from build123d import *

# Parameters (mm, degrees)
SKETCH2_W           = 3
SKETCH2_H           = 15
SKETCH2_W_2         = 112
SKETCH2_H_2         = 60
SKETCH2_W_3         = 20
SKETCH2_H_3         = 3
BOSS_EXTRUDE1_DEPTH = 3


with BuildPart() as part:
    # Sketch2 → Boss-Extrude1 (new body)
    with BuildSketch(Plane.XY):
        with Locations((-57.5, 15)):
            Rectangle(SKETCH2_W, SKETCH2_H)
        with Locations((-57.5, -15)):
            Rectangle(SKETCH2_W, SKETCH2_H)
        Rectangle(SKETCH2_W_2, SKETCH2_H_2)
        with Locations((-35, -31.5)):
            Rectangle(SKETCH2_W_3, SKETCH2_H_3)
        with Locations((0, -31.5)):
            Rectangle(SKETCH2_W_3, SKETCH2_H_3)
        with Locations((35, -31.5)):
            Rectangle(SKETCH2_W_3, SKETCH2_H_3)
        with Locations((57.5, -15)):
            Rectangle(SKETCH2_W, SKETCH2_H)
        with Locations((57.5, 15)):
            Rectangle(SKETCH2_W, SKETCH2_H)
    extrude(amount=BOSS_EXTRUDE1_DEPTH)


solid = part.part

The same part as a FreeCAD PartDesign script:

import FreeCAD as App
import Part
import Sketcher

V = App.Vector

doc = App.newDocument("Part")
params = doc.addObject("Spreadsheet::Sheet", "Params")
for row, (alias, value) in enumerate([
    ("sketch1_width", "3 mm"),
    ("sketch1_width2", "11 mm"),
    ("sketch1_width3", "20 mm"),
    ("sketch1_width4", "15 mm"),
    ("sketch1_height", "7.5 mm"),
    ("pad1_length", "3 mm"),
], start=1):
    params.set(f"A{row}", alias)
    params.set(f"B{row}", "=" + value)
    params.setAlias(f"B{row}", alias)

body = doc.addObject("PartDesign::Body", "Body")

# Sketch on XY plane
sketch1 = body.newObject("Sketcher::SketchObject", "Sketch")
sketch1.AttachmentSupport = (doc.getObject("XY_Plane"), [""])
sketch1.MapMode = "FlatFace"
sketch1.addGeometry(Part.LineSegment(V(-59, 22.5, 0), V(-59, 7.5, 0)), False)
sketch1.addGeometry(Part.LineSegment(V(-59, 7.5, 0), V(-56, 7.5, 0)), False)
sketch1.addGeometry(Part.LineSegment(V(-56, 7.5, 0), V(-56, -7.5, 0)), False)
sketch1.addGeometry(Part.LineSegment(V(-56, -7.5, 0), V(-59, -7.5, 0)), False)
sketch1.addGeometry(Part.LineSegment(V(-59, -7.5, 0), V(-59, -22.5, 0)), False)
sketch1.addGeometry(Part.LineSegment(V(-59, -22.5, 0), V(-56, -22.5, 0)), False)
sketch1.addGeometry(Part.LineSegment(V(-56, -22.5, 0), V(-56, -30, 0)), False)
sketch1.addGeometry(Part.LineSegment(V(-56, -30, 0), V(-45, -30, 0)), False)
sketch1.addGeometry(Part.LineSegment(V(-45, -30, 0), V(-45, -33, 0)), False)
sketch1.addGeometry(Part.LineSegment(V(-45, -33, 0), V(-25, -33, 0)), False)
sketch1.addGeometry(Part.LineSegment(V(-25, -33, 0), V(-25, -30, 0)), False)
sketch1.addGeometry(Part.LineSegment(V(-25, -30, 0), V(-10, -30, 0)), False)
sketch1.addGeometry(Part.LineSegment(V(-10, -30, 0), V(-10, -33, 0)), False)
sketch1.addGeometry(Part.LineSegment(V(-10, -33, 0), V(10, -33, 0)), False)
sketch1.addGeometry(Part.LineSegment(V(10, -33, 0), V(10, -30, 0)), False)
sketch1.addGeometry(Part.LineSegment(V(10, -30, 0), V(25, -30, 0)), False)
sketch1.addGeometry(Part.LineSegment(V(25, -30, 0), V(25, -33, 0)), False)
sketch1.addGeometry(Part.LineSegment(V(25, -33, 0), V(45, -33, 0)), False)
sketch1.addGeometry(Part.LineSegment(V(45, -33, 0), V(45, -30, 0)), False)
sketch1.addGeometry(Part.LineSegment(V(45, -30, 0), V(56, -30, 0)), False)
sketch1.addGeometry(Part.LineSegment(V(56, -30, 0), V(56, -22.5, 0)), False)
sketch1.addGeometry(Part.LineSegment(V(56, -22.5, 0), V(59, -22.5, 0)), False)
sketch1.addGeometry(Part.LineSegment(V(59, -22.5, 0), V(59, -7.5, 0)), False)
sketch1.addGeometry(Part.LineSegment(V(59, -7.5, 0), V(56, -7.5, 0)), False)
sketch1.addGeometry(Part.LineSegment(V(56, -7.5, 0), V(56, 7.5, 0)), False)
sketch1.addGeometry(Part.LineSegment(V(56, 7.5, 0), V(59, 7.5, 0)), False)
sketch1.addGeometry(Part.LineSegment(V(59, 7.5, 0), V(59, 22.5, 0)), False)
sketch1.addGeometry(Part.LineSegment(V(59, 22.5, 0), V(56, 22.5, 0)), False)
sketch1.addGeometry(Part.LineSegment(V(56, 22.5, 0), V(56, 30, 0)), False)
sketch1.addGeometry(Part.LineSegment(V(56, 30, 0), V(-56, 30, 0)), False)
sketch1.addGeometry(Part.LineSegment(V(-56, 30, 0), V(-56, 22.5, 0)), False)
sketch1.addGeometry(Part.LineSegment(V(-56, 22.5, 0), V(-59, 22.5, 0)), False)
sketch1.addConstraint(Sketcher.Constraint("Coincident", 0, 2, 1, 1))
sketch1.addConstraint(Sketcher.Constraint("Coincident", 1, 2, 2, 1))
sketch1.addConstraint(Sketcher.Constraint("Coincident", 2, 2, 3, 1))
sketch1.addConstraint(Sketcher.Constraint("Coincident", 3, 2, 4, 1))
sketch1.addConstraint(Sketcher.Constraint("Coincident", 4, 2, 5, 1))
sketch1.addConstraint(Sketcher.Constraint("Coincident", 5, 2, 6, 1))
sketch1.addConstraint(Sketcher.Constraint("Coincident", 6, 2, 7, 1))
sketch1.addConstraint(Sketcher.Constraint("Coincident", 7, 2, 8, 1))
sketch1.addConstraint(Sketcher.Constraint("Coincident", 8, 2, 9, 1))
sketch1.addConstraint(Sketcher.Constraint("Coincident", 9, 2, 10, 1))
sketch1.addConstraint(Sketcher.Constraint("Coincident", 10, 2, 11, 1))
sketch1.addConstraint(Sketcher.Constraint("Coincident", 11, 2, 12, 1))
sketch1.addConstraint(Sketcher.Constraint("Coincident", 12, 2, 13, 1))
sketch1.addConstraint(Sketcher.Constraint("Coincident", 13, 2, 14, 1))
sketch1.addConstraint(Sketcher.Constraint("Coincident", 14, 2, 15, 1))
sketch1.addConstraint(Sketcher.Constraint("Coincident", 15, 2, 16, 1))
sketch1.addConstraint(Sketcher.Constraint("Coincident", 16, 2, 17, 1))
sketch1.addConstraint(Sketcher.Constraint("Coincident", 17, 2, 18, 1))
sketch1.addConstraint(Sketcher.Constraint("Coincident", 18, 2, 19, 1))
sketch1.addConstraint(Sketcher.Constraint("Coincident", 19, 2, 20, 1))
sketch1.addConstraint(Sketcher.Constraint("Coincident", 20, 2, 21, 1))
sketch1.addConstraint(Sketcher.Constraint("Coincident", 21, 2, 22, 1))
sketch1.addConstraint(Sketcher.Constraint("Coincident", 22, 2, 23, 1))
sketch1.addConstraint(Sketcher.Constraint("Coincident", 23, 2, 24, 1))
sketch1.addConstraint(Sketcher.Constraint("Coincident", 24, 2, 25, 1))
sketch1.addConstraint(Sketcher.Constraint("Coincident", 25, 2, 26, 1))
sketch1.addConstraint(Sketcher.Constraint("Coincident", 26, 2, 27, 1))
sketch1.addConstraint(Sketcher.Constraint("Coincident", 27, 2, 28, 1))
sketch1.addConstraint(Sketcher.Constraint("Coincident", 28, 2, 29, 1))
sketch1.addConstraint(Sketcher.Constraint("Coincident", 29, 2, 30, 1))
sketch1.addConstraint(Sketcher.Constraint("Coincident", 30, 2, 31, 1))
sketch1.addConstraint(Sketcher.Constraint("Coincident", 31, 2, 0, 1))
sketch1.addConstraint(Sketcher.Constraint("Vertical", 0))
sketch1.addConstraint(Sketcher.Constraint("Horizontal", 1))
sketch1.addConstraint(Sketcher.Constraint("Vertical", 2))
sketch1.addConstraint(Sketcher.Constraint("Horizontal", 3))
sketch1.addConstraint(Sketcher.Constraint("Vertical", 4))
sketch1.addConstraint(Sketcher.Constraint("Horizontal", 5))
sketch1.addConstraint(Sketcher.Constraint("Vertical", 6))
sketch1.addConstraint(Sketcher.Constraint("Horizontal", 7))
sketch1.addConstraint(Sketcher.Constraint("Vertical", 8))
sketch1.addConstraint(Sketcher.Constraint("Horizontal", 9))
sketch1.addConstraint(Sketcher.Constraint("Vertical", 10))
sketch1.addConstraint(Sketcher.Constraint("Horizontal", 11))
sketch1.addConstraint(Sketcher.Constraint("Vertical", 12))
sketch1.addConstraint(Sketcher.Constraint("Horizontal", 13))
sketch1.addConstraint(Sketcher.Constraint("Vertical", 14))
sketch1.addConstraint(Sketcher.Constraint("Horizontal", 15))
sketch1.addConstraint(Sketcher.Constraint("Vertical", 16))
sketch1.addConstraint(Sketcher.Constraint("Horizontal", 17))
sketch1.addConstraint(Sketcher.Constraint("Vertical", 18))
sketch1.addConstraint(Sketcher.Constraint("Horizontal", 19))
sketch1.addConstraint(Sketcher.Constraint("Vertical", 20))
sketch1.addConstraint(Sketcher.Constraint("Horizontal", 21))
sketch1.addConstraint(Sketcher.Constraint("Vertical", 22))
sketch1.addConstraint(Sketcher.Constraint("Horizontal", 23))
sketch1.addConstraint(Sketcher.Constraint("Vertical", 24))
sketch1.addConstraint(Sketcher.Constraint("Horizontal", 25))
sketch1.addConstraint(Sketcher.Constraint("Vertical", 26))
sketch1.addConstraint(Sketcher.Constraint("Horizontal", 27))
sketch1.addConstraint(Sketcher.Constraint("Vertical", 28))
sketch1.addConstraint(Sketcher.Constraint("Horizontal", 29))
sketch1.addConstraint(Sketcher.Constraint("Vertical", 30))
sketch1.addConstraint(Sketcher.Constraint("Horizontal", 31))
sketch1.addConstraint(Sketcher.Constraint("Symmetric", 0, 2, 22, 2, -1, 1))
sketch1.addConstraint(Sketcher.Constraint("Symmetric", 2, 2, 24, 2, -1, 1))
sketch1.addConstraint(Sketcher.Constraint("Symmetric", 4, 2, 26, 2, -1, 1))
sketch1.addConstraint(Sketcher.Constraint("Symmetric", 6, 2, 28, 2, -1, 1))
sketch1.addConstraint(Sketcher.Constraint("Symmetric", 19, 2, 29, 2, -1, 1))
sketch1.addConstraint(Sketcher.Constraint("Symmetric", 11, 2, 14, 2, -2))
sketch1.addConstraint(Sketcher.Constraint("Symmetric", 9, 2, 16, 2, -2))
sketch1.addConstraint(Sketcher.Constraint("Symmetric", 5, 2, 20, 2, -2))
sketch1.addConstraint(Sketcher.Constraint("Symmetric", 3, 2, 22, 2, -2))
sketch1.addConstraint(Sketcher.Constraint("Horizontal", 7, 2, 10, 2))
sketch1.addConstraint(Sketcher.Constraint("Horizontal", 9, 2, 12, 2))
sketch1.addConstraint(Sketcher.Constraint("Horizontal", 27, 2, 30, 2))
sketch1.addConstraint(Sketcher.Constraint("Vertical", 2, 2, 5, 2))
sketch1.addConstraint(Sketcher.Constraint("Equal", 9, 13))
sketch1.addConstraint(Sketcher.Constraint("Equal", 13, 17))
sketch1.addConstraint(Sketcher.Constraint("Equal", 15, 0))
sketch1.addConstraint(Sketcher.Constraint("Equal", 0, 2))
sketch1.addConstraint(Sketcher.Constraint("Equal", 31, 8))
sketch1.addConstraint(Sketcher.Constraint("DistanceX", 1, 1, 1, 2, 3.0))
sketch1.addConstraint(Sketcher.Constraint("DistanceX", 7, 1, 7, 2, 11.0))
sketch1.addConstraint(Sketcher.Constraint("DistanceX", 9, 1, 9, 2, 20.0))
sketch1.addConstraint(Sketcher.Constraint("DistanceX", 11, 1, 11, 2, 15.0))
sketch1.addConstraint(Sketcher.Constraint("DistanceY", 6, 2, 6, 1, 7.5))
sketch1.setExpression("Constraints[82]", "Params.sketch1_width")
sketch1.setExpression("Constraints[83]", "Params.sketch1_width2")
sketch1.setExpression("Constraints[84]", "Params.sketch1_width3")
sketch1.setExpression("Constraints[85]", "Params.sketch1_width4")
sketch1.setExpression("Constraints[86]", "Params.sketch1_height")
pad1 = body.newObject("PartDesign::Pad", "Pad")
pad1.Profile = sketch1
pad1.setExpression("Length", "Params.pad1_length")

doc.recompute()
